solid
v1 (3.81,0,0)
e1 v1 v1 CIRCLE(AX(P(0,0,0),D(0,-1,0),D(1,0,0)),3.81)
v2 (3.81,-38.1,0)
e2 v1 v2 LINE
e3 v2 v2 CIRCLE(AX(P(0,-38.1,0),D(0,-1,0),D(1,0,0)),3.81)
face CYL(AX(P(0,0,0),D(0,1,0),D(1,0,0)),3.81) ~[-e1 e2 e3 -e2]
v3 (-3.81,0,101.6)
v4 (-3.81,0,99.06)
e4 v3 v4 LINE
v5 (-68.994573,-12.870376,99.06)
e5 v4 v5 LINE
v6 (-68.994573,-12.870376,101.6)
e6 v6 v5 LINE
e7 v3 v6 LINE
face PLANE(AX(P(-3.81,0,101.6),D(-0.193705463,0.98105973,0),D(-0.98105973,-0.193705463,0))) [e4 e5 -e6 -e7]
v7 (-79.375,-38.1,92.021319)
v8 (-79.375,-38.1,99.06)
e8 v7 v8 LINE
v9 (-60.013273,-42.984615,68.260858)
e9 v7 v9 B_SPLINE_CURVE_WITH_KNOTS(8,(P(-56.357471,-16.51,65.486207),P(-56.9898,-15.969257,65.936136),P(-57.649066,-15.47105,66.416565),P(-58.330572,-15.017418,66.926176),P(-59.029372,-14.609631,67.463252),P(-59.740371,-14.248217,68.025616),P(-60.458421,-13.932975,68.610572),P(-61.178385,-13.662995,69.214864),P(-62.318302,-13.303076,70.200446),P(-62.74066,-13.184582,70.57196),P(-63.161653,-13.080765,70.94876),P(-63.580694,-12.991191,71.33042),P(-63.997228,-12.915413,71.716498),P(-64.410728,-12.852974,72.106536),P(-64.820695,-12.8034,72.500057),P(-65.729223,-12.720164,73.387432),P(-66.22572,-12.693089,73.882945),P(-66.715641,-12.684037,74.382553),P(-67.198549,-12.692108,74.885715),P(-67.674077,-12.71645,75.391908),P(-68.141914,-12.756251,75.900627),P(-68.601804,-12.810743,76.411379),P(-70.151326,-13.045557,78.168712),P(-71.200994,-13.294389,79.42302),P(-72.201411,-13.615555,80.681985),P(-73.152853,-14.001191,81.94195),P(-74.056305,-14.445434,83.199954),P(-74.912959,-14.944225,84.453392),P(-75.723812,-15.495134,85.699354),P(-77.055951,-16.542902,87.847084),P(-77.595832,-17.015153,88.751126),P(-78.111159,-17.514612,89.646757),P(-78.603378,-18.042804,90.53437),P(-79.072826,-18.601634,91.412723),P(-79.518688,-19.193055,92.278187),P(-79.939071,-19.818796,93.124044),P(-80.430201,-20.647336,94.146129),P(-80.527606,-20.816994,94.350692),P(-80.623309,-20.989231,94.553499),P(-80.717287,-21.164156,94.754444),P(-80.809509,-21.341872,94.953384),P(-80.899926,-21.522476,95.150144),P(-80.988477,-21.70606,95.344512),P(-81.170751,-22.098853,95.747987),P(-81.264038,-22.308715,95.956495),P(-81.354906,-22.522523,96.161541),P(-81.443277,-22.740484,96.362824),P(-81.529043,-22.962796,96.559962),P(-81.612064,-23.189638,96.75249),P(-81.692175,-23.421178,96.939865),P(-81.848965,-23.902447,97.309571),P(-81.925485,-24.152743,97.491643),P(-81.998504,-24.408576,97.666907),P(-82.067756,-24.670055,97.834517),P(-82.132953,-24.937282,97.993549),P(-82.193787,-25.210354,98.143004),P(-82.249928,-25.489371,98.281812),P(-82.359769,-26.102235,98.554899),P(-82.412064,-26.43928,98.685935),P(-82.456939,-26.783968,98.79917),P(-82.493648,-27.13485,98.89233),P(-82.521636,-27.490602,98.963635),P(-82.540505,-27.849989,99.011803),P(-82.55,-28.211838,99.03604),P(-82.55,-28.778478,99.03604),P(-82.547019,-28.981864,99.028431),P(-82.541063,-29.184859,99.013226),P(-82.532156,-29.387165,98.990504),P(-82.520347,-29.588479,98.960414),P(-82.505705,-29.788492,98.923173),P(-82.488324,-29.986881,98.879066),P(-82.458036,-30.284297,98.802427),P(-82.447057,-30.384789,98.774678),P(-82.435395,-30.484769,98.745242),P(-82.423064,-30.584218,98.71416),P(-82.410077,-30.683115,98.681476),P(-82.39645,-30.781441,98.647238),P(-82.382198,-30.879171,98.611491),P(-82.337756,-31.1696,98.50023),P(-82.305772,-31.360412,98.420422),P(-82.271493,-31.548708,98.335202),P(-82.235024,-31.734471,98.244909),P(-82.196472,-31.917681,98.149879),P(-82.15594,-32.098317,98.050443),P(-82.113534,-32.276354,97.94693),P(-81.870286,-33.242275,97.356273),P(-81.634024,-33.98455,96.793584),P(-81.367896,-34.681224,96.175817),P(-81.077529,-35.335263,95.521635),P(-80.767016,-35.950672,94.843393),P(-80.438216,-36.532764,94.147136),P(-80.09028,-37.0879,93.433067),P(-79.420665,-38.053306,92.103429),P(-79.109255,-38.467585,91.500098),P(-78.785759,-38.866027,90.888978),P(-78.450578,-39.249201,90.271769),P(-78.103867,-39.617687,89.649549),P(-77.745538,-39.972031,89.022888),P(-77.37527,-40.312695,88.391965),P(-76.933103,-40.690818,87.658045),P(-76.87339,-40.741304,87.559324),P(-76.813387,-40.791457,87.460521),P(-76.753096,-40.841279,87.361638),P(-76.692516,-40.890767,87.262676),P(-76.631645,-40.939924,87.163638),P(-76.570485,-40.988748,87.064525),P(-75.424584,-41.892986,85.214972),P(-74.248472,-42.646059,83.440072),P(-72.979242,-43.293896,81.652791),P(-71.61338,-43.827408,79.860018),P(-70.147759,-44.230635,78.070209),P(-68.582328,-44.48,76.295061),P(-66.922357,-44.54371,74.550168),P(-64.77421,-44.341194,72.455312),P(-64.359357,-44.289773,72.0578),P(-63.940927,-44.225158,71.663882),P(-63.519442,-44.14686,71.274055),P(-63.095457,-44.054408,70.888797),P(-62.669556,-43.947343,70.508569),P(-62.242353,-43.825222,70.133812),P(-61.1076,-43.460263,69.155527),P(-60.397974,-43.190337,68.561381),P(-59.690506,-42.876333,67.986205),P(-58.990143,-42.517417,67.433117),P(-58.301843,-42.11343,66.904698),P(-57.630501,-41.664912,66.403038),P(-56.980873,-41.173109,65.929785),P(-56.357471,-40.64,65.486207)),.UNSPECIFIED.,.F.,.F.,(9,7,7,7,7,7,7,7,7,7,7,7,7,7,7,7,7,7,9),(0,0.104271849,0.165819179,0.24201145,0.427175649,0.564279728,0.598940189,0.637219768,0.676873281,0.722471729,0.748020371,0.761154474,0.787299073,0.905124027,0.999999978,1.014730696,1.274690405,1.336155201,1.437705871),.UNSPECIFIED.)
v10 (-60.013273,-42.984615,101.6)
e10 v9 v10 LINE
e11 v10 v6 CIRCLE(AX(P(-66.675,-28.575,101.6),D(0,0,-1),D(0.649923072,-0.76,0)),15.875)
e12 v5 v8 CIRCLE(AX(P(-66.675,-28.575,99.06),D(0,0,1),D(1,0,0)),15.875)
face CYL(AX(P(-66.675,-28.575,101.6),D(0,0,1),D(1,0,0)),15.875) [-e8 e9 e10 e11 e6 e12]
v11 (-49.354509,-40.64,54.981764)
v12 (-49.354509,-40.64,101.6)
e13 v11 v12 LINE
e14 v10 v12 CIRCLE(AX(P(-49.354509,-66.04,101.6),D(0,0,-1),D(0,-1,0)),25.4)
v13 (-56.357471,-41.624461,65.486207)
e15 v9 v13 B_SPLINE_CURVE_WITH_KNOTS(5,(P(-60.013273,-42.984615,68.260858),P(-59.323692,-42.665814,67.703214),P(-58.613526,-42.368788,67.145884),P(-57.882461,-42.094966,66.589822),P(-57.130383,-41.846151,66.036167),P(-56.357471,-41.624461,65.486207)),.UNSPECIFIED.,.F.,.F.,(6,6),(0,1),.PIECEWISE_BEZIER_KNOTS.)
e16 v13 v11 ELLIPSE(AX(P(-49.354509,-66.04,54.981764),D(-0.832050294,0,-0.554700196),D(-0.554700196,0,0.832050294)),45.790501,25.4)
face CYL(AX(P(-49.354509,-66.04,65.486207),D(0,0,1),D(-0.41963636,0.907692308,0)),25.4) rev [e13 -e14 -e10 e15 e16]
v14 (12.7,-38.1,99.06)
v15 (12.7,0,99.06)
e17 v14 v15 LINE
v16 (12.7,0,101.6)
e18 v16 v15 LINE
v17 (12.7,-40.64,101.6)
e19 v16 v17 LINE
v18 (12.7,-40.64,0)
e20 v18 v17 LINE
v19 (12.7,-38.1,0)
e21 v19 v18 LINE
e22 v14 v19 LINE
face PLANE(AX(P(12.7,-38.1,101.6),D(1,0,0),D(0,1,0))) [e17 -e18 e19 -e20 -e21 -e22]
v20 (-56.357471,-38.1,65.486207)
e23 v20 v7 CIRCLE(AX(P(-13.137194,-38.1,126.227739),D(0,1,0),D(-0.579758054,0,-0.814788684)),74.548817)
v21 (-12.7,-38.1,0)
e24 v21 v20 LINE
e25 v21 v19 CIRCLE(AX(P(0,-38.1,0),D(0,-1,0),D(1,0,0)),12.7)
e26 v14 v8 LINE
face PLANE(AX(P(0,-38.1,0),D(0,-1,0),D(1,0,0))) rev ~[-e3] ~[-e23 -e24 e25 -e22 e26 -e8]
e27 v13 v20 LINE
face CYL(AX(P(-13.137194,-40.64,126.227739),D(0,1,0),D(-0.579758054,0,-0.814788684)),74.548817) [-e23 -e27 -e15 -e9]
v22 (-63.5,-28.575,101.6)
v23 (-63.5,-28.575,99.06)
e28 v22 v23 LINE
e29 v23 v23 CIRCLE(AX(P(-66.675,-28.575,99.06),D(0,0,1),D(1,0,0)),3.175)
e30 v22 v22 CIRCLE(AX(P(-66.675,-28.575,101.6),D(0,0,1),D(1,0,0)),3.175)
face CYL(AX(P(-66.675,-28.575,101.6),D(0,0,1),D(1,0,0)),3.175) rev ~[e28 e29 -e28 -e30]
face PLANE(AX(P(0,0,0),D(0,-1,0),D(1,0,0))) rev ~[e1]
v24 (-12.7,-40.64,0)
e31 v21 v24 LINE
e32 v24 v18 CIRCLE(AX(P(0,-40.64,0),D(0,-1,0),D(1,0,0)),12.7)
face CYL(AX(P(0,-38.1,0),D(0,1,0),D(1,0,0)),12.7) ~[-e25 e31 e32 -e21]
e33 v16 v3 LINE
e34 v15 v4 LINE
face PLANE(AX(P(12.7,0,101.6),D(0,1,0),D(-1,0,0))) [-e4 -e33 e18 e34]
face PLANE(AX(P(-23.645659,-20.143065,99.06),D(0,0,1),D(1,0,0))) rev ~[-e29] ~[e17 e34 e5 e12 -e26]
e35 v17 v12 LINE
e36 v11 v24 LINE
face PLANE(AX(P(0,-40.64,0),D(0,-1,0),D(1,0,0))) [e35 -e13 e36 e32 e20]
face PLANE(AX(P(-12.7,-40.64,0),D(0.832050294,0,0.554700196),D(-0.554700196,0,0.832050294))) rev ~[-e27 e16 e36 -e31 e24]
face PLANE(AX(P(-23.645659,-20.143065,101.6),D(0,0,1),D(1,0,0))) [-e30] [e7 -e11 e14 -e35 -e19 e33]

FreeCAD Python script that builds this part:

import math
import FreeCAD as App
import Part
import Sketcher
Q = App.Units.Quantity


def edges_at(feature, points):
    """Names of the edges that pass closest to the given points."""
    edges = feature.Shape.Edges
    near = lambda p: min(range(len(edges)), key=lambda i: edges[i].distToShape(Part.Vertex(*p))[0])
    return sorted({f"Edge{near(p) + 1}" for p in points})


def add_polygon(sketch, points):
    """Adds a closed chain of lines whose ends are joined by coincident constraints."""
    first, n = sketch.GeometryCount, len(points)
    for a, b in zip(points, points[1:] + points[:1]):
        sketch.addGeometry(Part.LineSegment(App.Vector(*a, 0), App.Vector(*b, 0)), False)
    for i in range(n):
        sketch.addConstraint(Sketcher.Constraint("Coincident", first + i, 2, first + (i + 1) % n, 1))

doc = App.newDocument("Part")
body = doc.addObject("PartDesign::Body", "Body")

sketch1 = body.newObject("Sketcher::SketchObject", "Sketch")
sketch1.AttachmentSupport = (doc.getObject("XZ_Plane"), [""])
sketch1.MapMode = "FlatFace"
sketch1.addGeometry(Part.Circle(App.Vector(0, 0, 0), App.Vector(0, 0, 1), 3.8), False)
sketch1.addConstraint([
    Sketcher.Constraint("Coincident", 0, 3, -1, 1),
    Sketcher.Constraint("Diameter", 0, Q("0.3 in")),
])
pad1 = body.newObject("PartDesign::Pad", "Pad")
pad1.Profile = sketch1
pad1.Length = Q("1.5 in")

sketch2 = body.newObject("Sketcher::SketchObject", "Sketch001")
sketch2.AttachmentSupport = (doc.getObject("XZ_Plane"), [""])
sketch2.MapMode = "FlatFace"
sketch2.AttachmentOffset = App.Placement(App.Vector(0, 0, 1.5 * 25.4), App.Rotation())
sketch2.addGeometry([
    Part.ArcOfCircle(Part.Circle(App.Vector(0, 0, 0), App.Vector(0, 0, 1), 13), math.radians(180), math.radians(360)),
    Part.LineSegment(App.Vector(13, 0, 0), App.Vector(13, 102, 0)),
    Part.LineSegment(App.Vector(13, 102, 0), App.Vector(-64, 102, 0)),
    Part.LineSegment(App.Vector(-64, 102, 0), App.Vector(-64, 76, 0)),
    Part.LineSegment(App.Vector(-64, 76, 0), App.Vector(-13, 0, 0)),
], False)
sketch2.addConstraint([
    Sketcher.Constraint("Tangent", 0, 2, 1, 1),
    Sketcher.Constraint("Coincident", 1, 2, 2, 1),
    Sketcher.Constraint("Coincident", 2, 2, 3, 1),
    Sketcher.Constraint("Coincident", 3, 2, 4, 1),
    Sketcher.Constraint("Coincident", 4, 2, 0, 1),
    Sketcher.Constraint("Vertical", 1),
    Sketcher.Constraint("Horizontal", 2),
    Sketcher.Constraint("Vertical", 3),
    Sketcher.Constraint("Coincident", 0, 3, -1, 1),
    Sketcher.Constraint("PointOnObject", 4, 2, -1),
    Sketcher.Constraint("Radius", 0, Q("0.5 in")),
    Sketcher.Constraint("DistanceX", 2, 2, 2, 1, Q("3 in")),
    Sketcher.Constraint("DistanceY", 1, 1, 1, 2, Q("4 in")),
    Sketcher.Constraint("DistanceY", 3, 2, 3, 1, Q("1 in")),
])
pad2 = body.newObject("PartDesign::Pad", "Pad001")
pad2.Profile = sketch2
pad2.Length = Q("0.1 in")

sketch3 = body.newObject("Sketcher::SketchObject", "Sketch002")
sketch3.AttachmentSupport = (doc.getObject("XY_Plane"), [""])
sketch3.MapMode = "FlatFace"
sketch3.AttachmentOffset = App.Placement(App.Vector(0, 0, 4 * 25.4), App.Rotation())
sketch3.addGeometry(Part.Circle(App.Vector(-67, -29, 0), App.Vector(0, 0, 1), 16), False)
sketch3.addConstraint([
    Sketcher.Constraint("Diameter", 0, Q("1.25 in")),
    Sketcher.Constraint("DistanceX", 0, 3, -1, 1, Q("2.625 in")),
    Sketcher.Constraint("DistanceY", 0, 3, -1, 1, Q("1.125 in")),
])
pad3 = body.newObject("PartDesign::Pad", "Pad002")
pad3.Profile = sketch3
pad3.Length = Q("2.28 in")
pad3.Reversed = True

sketch4 = body.newObject("Sketcher::SketchObject", "Sketch003")
sketch4.AttachmentSupport = (doc.getObject("XZ_Plane"), [""])
sketch4.MapMode = "FlatFace"
sketch4.AttachmentOffset = App.Placement(App.Vector(0, 0, 1.6 * 25.4), App.Rotation())
sketch4.addGeometry([
    Part.LineSegment(App.Vector(-44, -7, 0), App.Vector(-13, 0, 0)),
    Part.LineSegment(App.Vector(-13, 0, 0), App.Vector(-56, 65, 0)),
    Part.ArcOfCircle(Part.Circle(App.Vector(-13, 126, 0), App.Vector(0, 0, 1), 75), math.radians(-163), math.radians(-125)),
    Part.LineSegment(App.Vector(-85, 105, 0), App.Vector(-88, 14, 0)),
    Part.LineSegment(App.Vector(-88, 14, 0), App.Vector(-44, -7, 0)),
], False)
sketch4.addConstraint([
    Sketcher.Constraint("Coincident", 0, 2, 1, 1),
    Sketcher.Constraint("Coincident", 1, 2, 2, 2),
    Sketcher.Constraint("Coincident", 2, 1, 3, 1),
    Sketcher.Constraint("Coincident", 3, 2, 4, 1),
    Sketcher.Constraint("Coincident", 4, 2, 0, 1),
    Sketcher.Constraint("PointOnObject", 0, 2, -1),
    Sketcher.Constraint("DistanceX", 0, 2, -1, 1, Q("0.5 in")),
    Sketcher.Constraint("DistanceX", 1, 2, 4, 2, Q("0.46875 in")),
    Sketcher.Constraint("Radius", 2, 74.548817),
    Sketcher.Constraint("DistanceY", -1, 1, 2, 3, 126.227739),
    Sketcher.Constraint("DistanceX", 1, 2, -1, 1, 56.357471),
    Sketcher.Constraint("DistanceX", 2, 1, -1, 1, 84.613889),
    Sketcher.Constraint("DistanceY", 1, 2, 2, 1, 39.561161),
    Sketcher.Constraint("DistanceY", 3, 2, 1, 2, 51.33081),
    Sketcher.Constraint("DistanceY", 4, 2, 3, 2, 20.659041),
    Sketcher.Constraint("Distance", 3, 90.970566),
])
pocket1 = body.newObject("PartDesign::Pocket", "Pocket")
pocket1.Profile = sketch4
pocket1.Type = "ThroughAll"
pocket1.Midplane = True

sketch5 = body.newObject("Sketcher::SketchObject", "Sketch004")
sketch5.AttachmentSupport = (doc.getObject("YZ_Plane"), [""])
sketch5.MapMode = "FlatFace"
sketch5.AttachmentOffset = App.Placement(App.Vector(0, 0, 0.5 * 25.4), App.Rotation())
add_polygon(sketch5, [(-6, 5), (-6, 99), (-38, 99), (-38, 5)])
sketch5.addConstraint([
    Sketcher.Constraint("Vertical", 0),
    Sketcher.Constraint("Horizontal", 1),
    Sketcher.Constraint("Vertical", 2),
    Sketcher.Constraint("Horizontal", 3),
    Sketcher.Constraint("DistanceY", -1, 1, 0, 2, Q("3.9 in")),
    Sketcher.Constraint("DistanceX", 1, 2, -1, 1, Q("1.5 in")),
    Sketcher.Constraint("DistanceX", 1, 2, 1, 1, 31.934409),
    Sketcher.Constraint("DistanceY", 0, 1, 0, 2, 94.374462),
])
pocket2 = body.newObject("PartDesign::Pocket", "Pocket001")
pocket2.Profile = sketch5
pocket2.Length = Q("5.54 in")

sketch6 = body.newObject("Sketcher::SketchObject", "Sketch005")
sketch6.AttachmentSupport = (doc.getObject("XY_Plane"), [""])
sketch6.MapMode = "FlatFace"
sketch6.AttachmentOffset = App.Placement(App.Vector(0, 0, 4 * 25.4), App.Rotation())
sketch6.addGeometry([
    Part.LineSegment(App.Vector(-54, -38, 0), App.Vector(13, -38, 0)),
    Part.LineSegment(App.Vector(13, -38, 0), App.Vector(13, 0, 0)),
    Part.LineSegment(App.Vector(13, 0, 0), App.Vector(-4, 0, 0)),
    Part.LineSegment(App.Vector(-4, 0, 0), App.Vector(-69, -13, 0)),
    Part.ArcOfCircle(Part.Circle(App.Vector(-67, -29, 0), App.Vector(0, 0, 1), 16), math.radians(-37), math.radians(98)),
], False)
sketch6.addConstraint([
    Sketcher.Constraint("Coincident", 0, 2, 1, 1),
    Sketcher.Constraint("Coincident", 1, 2, 2, 1),
    Sketcher.Constraint("Coincident", 2, 2, 3, 1),
    Sketcher.Constraint("Coincident", 3, 2, 4, 2),
    Sketcher.Constraint("Coincident", 4, 1, 0, 1),
    Sketcher.Constraint("Horizontal", 0),
    Sketcher.Constraint("Vertical", 1),
    Sketcher.Constraint("Horizontal", 2),
    Sketcher.Constraint("PointOnObject", 1, 2, -1),
    Sketcher.Constraint("DistanceY", 1, 1, 1, 2, Q("1.5 in")),
    Sketcher.Constraint("Radius", 4, Q("0.625 in")),
    Sketcher.Constraint("DistanceX", 2, 2, 2, 1, Q("0.65 in")),
    Sketcher.Constraint("DistanceX", -1, 1, 0, 2, Q("0.5 in")),
    Sketcher.Constraint("DistanceX", 4, 3, 4, 1, Q("0.5 in")),
    Sketcher.Constraint("DistanceX", 0, 1, 0, 2, Q("2.625 in")),
    Sketcher.Constraint("Distance", 3, 66.443021),
])
pad4 = body.newObject("PartDesign::Pad", "Pad003")
pad4.Profile = sketch6
pad4.Length = Q("0.1 in")
pad4.Reversed = True
doc.recompute()

fillet = body.newObject("PartDesign::Fillet", "Fillet")
fillet.Base = (pad4, edges_at(pad4, [(-56.357, -40.64, 83.543)]))
fillet.Radius = Q("1 in")

sketch7 = body.newObject("Sketcher::SketchObject", "Sketch006")
sketch7.AttachmentSupport = (doc.getObject("XY_Plane"), [""])
sketch7.MapMode = "FlatFace"
sketch7.AttachmentOffset = App.Placement(App.Vector(0, 0, 4 * 25.4), App.Rotation())
sketch7.addGeometry(Part.Circle(App.Vector(-66.7, -28.6, 0), App.Vector(0, 0, 1), 3.2), False)
sketch7.addConstraint([
    Sketcher.Constraint("Diameter", 0, Q("0.25 in")),
    Sketcher.Constraint("DistanceX", 0, 3, -1, 1, Q("2.625 in")),
    Sketcher.Constraint("DistanceY", 0, 3, -1, 1, Q("1.125 in")),
])
pocket3 = body.newObject("PartDesign::Pocket", "Pocket002")
pocket3.Profile = sketch7
pocket3.Length = Q("1 in")

doc.recompute()
